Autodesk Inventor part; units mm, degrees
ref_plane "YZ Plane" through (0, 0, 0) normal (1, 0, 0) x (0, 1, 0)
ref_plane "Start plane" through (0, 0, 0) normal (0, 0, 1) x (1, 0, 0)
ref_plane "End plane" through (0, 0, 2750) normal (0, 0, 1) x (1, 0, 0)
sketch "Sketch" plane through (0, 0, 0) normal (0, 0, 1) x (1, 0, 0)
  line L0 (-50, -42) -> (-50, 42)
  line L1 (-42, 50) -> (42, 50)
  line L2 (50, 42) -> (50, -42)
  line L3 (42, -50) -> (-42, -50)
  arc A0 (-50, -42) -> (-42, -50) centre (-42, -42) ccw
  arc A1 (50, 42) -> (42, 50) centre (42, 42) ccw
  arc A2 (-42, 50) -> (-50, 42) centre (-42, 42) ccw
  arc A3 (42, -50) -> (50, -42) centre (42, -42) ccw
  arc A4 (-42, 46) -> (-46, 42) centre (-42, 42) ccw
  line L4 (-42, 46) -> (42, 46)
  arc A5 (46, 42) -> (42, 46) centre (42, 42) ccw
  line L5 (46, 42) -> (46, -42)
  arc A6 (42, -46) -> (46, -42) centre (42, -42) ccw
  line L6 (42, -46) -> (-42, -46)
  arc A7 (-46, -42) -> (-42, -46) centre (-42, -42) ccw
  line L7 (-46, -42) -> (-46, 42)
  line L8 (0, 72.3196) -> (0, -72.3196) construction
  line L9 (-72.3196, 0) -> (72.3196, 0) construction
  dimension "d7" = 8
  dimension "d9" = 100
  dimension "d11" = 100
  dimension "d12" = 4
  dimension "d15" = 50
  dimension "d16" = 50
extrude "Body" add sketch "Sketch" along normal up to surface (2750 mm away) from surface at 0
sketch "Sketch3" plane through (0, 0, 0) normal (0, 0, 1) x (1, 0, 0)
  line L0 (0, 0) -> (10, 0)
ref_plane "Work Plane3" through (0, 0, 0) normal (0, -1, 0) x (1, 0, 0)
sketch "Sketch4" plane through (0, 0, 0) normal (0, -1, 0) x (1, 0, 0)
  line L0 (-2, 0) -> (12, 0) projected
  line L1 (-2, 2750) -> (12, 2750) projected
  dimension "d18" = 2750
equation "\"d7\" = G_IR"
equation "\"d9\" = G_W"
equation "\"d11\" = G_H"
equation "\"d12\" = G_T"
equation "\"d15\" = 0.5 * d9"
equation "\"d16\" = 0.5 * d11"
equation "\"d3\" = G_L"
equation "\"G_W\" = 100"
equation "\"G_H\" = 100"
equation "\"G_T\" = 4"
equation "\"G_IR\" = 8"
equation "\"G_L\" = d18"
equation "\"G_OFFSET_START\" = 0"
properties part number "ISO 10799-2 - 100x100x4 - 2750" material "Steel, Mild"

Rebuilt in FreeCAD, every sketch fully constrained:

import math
import FreeCAD as App
import Part
import Sketcher
Q = App.Units.Quantity

doc = App.newDocument("Part")
body = doc.addObject("PartDesign::Body", "Body")

sketch1 = body.newObject("Sketcher::SketchObject", "Sketch")
sketch1.AttachmentSupport = (doc.getObject("XY_Plane"), [""])
sketch1.MapMode = "FlatFace"
sketch1.addGeometry(Part.LineSegment(App.Vector(-50, 42, 0), App.Vector(-50, -42, 0)), False)
sketch1.addGeometry(Part.ArcOfCircle(Part.Circle(App.Vector(-42, -42, 0), App.Vector(0, 0, 1), 8), math.radians(180), math.radians(270)), False)
sketch1.addGeometry(Part.LineSegment(App.Vector(-42, -50, 0), App.Vector(42, -50, 0)), False)
sketch1.addGeometry(Part.ArcOfCircle(Part.Circle(App.Vector(42, -42, 0), App.Vector(0, 0, 1), 8), math.radians(-90), math.radians(0)), False)
sketch1.addGeometry(Part.LineSegment(App.Vector(50, -42, 0), App.Vector(50, 42, 0)), False)
sketch1.addGeometry(Part.ArcOfCircle(Part.Circle(App.Vector(42, 42, 0), App.Vector(0, 0, 1), 8), math.radians(0), math.radians(90)), False)
sketch1.addGeometry(Part.LineSegment(App.Vector(42, 50, 0), App.Vector(-42, 50, 0)), False)
sketch1.addGeometry(Part.ArcOfCircle(Part.Circle(App.Vector(-42, 42, 0), App.Vector(0, 0, 1), 8), math.radians(90), math.radians(180)), False)
sketch1.addGeometry(Part.ArcOfCircle(Part.Circle(App.Vector(-42, 42, 0), App.Vector(0, 0, 1), 4), math.radians(90), math.radians(180)), False)
sketch1.addGeometry(Part.LineSegment(App.Vector(-42, 46, 0), App.Vector(42, 46, 0)), False)
sketch1.addGeometry(Part.ArcOfCircle(Part.Circle(App.Vector(42, 42, 0), App.Vector(0, 0, 1), 4), math.radians(0), math.radians(90)), False)
sketch1.addGeometry(Part.LineSegment(App.Vector(46, 42, 0), App.Vector(46, -42, 0)), False)
sketch1.addGeometry(Part.ArcOfCircle(Part.Circle(App.Vector(42, -42, 0), App.Vector(0, 0, 1), 4), math.radians(-90), math.radians(0)), False)
sketch1.addGeometry(Part.LineSegment(App.Vector(42, -46, 0), App.Vector(-42, -46, 0)), False)
sketch1.addGeometry(Part.ArcOfCircle(Part.Circle(App.Vector(-42, -42, 0), App.Vector(0, 0, 1), 4), math.radians(180), math.radians(270)), False)
sketch1.addGeometry(Part.LineSegment(App.Vector(-46, -42, 0), App.Vector(-46, 42, 0)), False)
sketch1.addConstraint(Sketcher.Constraint("Tangent", 0, 2, 1, 1))
sketch1.addConstraint(Sketcher.Constraint("Tangent", 1, 2, 2, 1))
sketch1.addConstraint(Sketcher.Constraint("Tangent", 2, 2, 3, 1))
sketch1.addConstraint(Sketcher.Constraint("Tangent", 3, 2, 4, 1))
sketch1.addConstraint(Sketcher.Constraint("Tangent", 4, 2, 5, 1))
sketch1.addConstraint(Sketcher.Constraint("Tangent", 5, 2, 6, 1))
sketch1.addConstraint(Sketcher.Constraint("Tangent", 6, 2, 7, 1))
sketch1.addConstraint(Sketcher.Constraint("Tangent", 7, 2, 0, 1))
sketch1.addConstraint(Sketcher.Constraint("Tangent", 8, 1, 9, 1))
sketch1.addConstraint(Sketcher.Constraint("Tangent", 9, 2, 10, 2))
sketch1.addConstraint(Sketcher.Constraint("Tangent", 10, 1, 11, 1))
sketch1.addConstraint(Sketcher.Constraint("Tangent", 11, 2, 12, 2))
sketch1.addConstraint(Sketcher.Constraint("Tangent", 12, 1, 13, 1))
sketch1.addConstraint(Sketcher.Constraint("Tangent", 13, 2, 14, 2))
sketch1.addConstraint(Sketcher.Constraint("Tangent", 14, 1, 15, 1))
sketch1.addConstraint(Sketcher.Constraint("Tangent", 15, 2, 8, 2))
sketch1.addConstraint(Sketcher.Constraint("Vertical", 0))
sketch1.addConstraint(Sketcher.Constraint("Horizontal", 2))
sketch1.addConstraint(Sketcher.Constraint("Vertical", 4))
sketch1.addConstraint(Sketcher.Constraint("Horizontal", 6))
sketch1.addConstraint(Sketcher.Constraint("Horizontal", 9))
sketch1.addConstraint(Sketcher.Constraint("Vertical", 11))
sketch1.addConstraint(Sketcher.Constraint("Horizontal", 13))
sketch1.addConstraint(Sketcher.Constraint("Vertical", 15))
sketch1.addConstraint(Sketcher.Constraint("Coincident", 8, 3, 7, 3))
sketch1.addConstraint(Sketcher.Constraint("Coincident", 10, 3, 5, 3))
sketch1.addConstraint(Sketcher.Constraint("Coincident", 12, 3, 3, 3))
sketch1.addConstraint(Sketcher.Constraint("Equal", 1, 3))
sketch1.addConstraint(Sketcher.Constraint("Equal", 3, 5))
sketch1.addConstraint(Sketcher.Constraint("Equal", 5, 7))
sketch1.addConstraint(Sketcher.Constraint("Equal", 12, 14))
sketch1.addConstraint(Sketcher.Constraint("Symmetric", 1, 3, 5, 3, -1, 1))
sketch1.addConstraint(Sketcher.Constraint("Equal", 13, 0))
sketch1.addConstraint(Sketcher.Constraint("Radius", 1, Q("8 mm")))
sketch1.addConstraint(Sketcher.Constraint("Radius", 8, Q("4 mm")))
sketch1.addConstraint(Sketcher.Constraint("DistanceX", 0, 2, -1, 1, Q("50 mm")))
pad1 = body.newObject("PartDesign::Pad", "Pad")
pad1.Profile = sketch1
pad1.Length = 2750

doc.recompute()
